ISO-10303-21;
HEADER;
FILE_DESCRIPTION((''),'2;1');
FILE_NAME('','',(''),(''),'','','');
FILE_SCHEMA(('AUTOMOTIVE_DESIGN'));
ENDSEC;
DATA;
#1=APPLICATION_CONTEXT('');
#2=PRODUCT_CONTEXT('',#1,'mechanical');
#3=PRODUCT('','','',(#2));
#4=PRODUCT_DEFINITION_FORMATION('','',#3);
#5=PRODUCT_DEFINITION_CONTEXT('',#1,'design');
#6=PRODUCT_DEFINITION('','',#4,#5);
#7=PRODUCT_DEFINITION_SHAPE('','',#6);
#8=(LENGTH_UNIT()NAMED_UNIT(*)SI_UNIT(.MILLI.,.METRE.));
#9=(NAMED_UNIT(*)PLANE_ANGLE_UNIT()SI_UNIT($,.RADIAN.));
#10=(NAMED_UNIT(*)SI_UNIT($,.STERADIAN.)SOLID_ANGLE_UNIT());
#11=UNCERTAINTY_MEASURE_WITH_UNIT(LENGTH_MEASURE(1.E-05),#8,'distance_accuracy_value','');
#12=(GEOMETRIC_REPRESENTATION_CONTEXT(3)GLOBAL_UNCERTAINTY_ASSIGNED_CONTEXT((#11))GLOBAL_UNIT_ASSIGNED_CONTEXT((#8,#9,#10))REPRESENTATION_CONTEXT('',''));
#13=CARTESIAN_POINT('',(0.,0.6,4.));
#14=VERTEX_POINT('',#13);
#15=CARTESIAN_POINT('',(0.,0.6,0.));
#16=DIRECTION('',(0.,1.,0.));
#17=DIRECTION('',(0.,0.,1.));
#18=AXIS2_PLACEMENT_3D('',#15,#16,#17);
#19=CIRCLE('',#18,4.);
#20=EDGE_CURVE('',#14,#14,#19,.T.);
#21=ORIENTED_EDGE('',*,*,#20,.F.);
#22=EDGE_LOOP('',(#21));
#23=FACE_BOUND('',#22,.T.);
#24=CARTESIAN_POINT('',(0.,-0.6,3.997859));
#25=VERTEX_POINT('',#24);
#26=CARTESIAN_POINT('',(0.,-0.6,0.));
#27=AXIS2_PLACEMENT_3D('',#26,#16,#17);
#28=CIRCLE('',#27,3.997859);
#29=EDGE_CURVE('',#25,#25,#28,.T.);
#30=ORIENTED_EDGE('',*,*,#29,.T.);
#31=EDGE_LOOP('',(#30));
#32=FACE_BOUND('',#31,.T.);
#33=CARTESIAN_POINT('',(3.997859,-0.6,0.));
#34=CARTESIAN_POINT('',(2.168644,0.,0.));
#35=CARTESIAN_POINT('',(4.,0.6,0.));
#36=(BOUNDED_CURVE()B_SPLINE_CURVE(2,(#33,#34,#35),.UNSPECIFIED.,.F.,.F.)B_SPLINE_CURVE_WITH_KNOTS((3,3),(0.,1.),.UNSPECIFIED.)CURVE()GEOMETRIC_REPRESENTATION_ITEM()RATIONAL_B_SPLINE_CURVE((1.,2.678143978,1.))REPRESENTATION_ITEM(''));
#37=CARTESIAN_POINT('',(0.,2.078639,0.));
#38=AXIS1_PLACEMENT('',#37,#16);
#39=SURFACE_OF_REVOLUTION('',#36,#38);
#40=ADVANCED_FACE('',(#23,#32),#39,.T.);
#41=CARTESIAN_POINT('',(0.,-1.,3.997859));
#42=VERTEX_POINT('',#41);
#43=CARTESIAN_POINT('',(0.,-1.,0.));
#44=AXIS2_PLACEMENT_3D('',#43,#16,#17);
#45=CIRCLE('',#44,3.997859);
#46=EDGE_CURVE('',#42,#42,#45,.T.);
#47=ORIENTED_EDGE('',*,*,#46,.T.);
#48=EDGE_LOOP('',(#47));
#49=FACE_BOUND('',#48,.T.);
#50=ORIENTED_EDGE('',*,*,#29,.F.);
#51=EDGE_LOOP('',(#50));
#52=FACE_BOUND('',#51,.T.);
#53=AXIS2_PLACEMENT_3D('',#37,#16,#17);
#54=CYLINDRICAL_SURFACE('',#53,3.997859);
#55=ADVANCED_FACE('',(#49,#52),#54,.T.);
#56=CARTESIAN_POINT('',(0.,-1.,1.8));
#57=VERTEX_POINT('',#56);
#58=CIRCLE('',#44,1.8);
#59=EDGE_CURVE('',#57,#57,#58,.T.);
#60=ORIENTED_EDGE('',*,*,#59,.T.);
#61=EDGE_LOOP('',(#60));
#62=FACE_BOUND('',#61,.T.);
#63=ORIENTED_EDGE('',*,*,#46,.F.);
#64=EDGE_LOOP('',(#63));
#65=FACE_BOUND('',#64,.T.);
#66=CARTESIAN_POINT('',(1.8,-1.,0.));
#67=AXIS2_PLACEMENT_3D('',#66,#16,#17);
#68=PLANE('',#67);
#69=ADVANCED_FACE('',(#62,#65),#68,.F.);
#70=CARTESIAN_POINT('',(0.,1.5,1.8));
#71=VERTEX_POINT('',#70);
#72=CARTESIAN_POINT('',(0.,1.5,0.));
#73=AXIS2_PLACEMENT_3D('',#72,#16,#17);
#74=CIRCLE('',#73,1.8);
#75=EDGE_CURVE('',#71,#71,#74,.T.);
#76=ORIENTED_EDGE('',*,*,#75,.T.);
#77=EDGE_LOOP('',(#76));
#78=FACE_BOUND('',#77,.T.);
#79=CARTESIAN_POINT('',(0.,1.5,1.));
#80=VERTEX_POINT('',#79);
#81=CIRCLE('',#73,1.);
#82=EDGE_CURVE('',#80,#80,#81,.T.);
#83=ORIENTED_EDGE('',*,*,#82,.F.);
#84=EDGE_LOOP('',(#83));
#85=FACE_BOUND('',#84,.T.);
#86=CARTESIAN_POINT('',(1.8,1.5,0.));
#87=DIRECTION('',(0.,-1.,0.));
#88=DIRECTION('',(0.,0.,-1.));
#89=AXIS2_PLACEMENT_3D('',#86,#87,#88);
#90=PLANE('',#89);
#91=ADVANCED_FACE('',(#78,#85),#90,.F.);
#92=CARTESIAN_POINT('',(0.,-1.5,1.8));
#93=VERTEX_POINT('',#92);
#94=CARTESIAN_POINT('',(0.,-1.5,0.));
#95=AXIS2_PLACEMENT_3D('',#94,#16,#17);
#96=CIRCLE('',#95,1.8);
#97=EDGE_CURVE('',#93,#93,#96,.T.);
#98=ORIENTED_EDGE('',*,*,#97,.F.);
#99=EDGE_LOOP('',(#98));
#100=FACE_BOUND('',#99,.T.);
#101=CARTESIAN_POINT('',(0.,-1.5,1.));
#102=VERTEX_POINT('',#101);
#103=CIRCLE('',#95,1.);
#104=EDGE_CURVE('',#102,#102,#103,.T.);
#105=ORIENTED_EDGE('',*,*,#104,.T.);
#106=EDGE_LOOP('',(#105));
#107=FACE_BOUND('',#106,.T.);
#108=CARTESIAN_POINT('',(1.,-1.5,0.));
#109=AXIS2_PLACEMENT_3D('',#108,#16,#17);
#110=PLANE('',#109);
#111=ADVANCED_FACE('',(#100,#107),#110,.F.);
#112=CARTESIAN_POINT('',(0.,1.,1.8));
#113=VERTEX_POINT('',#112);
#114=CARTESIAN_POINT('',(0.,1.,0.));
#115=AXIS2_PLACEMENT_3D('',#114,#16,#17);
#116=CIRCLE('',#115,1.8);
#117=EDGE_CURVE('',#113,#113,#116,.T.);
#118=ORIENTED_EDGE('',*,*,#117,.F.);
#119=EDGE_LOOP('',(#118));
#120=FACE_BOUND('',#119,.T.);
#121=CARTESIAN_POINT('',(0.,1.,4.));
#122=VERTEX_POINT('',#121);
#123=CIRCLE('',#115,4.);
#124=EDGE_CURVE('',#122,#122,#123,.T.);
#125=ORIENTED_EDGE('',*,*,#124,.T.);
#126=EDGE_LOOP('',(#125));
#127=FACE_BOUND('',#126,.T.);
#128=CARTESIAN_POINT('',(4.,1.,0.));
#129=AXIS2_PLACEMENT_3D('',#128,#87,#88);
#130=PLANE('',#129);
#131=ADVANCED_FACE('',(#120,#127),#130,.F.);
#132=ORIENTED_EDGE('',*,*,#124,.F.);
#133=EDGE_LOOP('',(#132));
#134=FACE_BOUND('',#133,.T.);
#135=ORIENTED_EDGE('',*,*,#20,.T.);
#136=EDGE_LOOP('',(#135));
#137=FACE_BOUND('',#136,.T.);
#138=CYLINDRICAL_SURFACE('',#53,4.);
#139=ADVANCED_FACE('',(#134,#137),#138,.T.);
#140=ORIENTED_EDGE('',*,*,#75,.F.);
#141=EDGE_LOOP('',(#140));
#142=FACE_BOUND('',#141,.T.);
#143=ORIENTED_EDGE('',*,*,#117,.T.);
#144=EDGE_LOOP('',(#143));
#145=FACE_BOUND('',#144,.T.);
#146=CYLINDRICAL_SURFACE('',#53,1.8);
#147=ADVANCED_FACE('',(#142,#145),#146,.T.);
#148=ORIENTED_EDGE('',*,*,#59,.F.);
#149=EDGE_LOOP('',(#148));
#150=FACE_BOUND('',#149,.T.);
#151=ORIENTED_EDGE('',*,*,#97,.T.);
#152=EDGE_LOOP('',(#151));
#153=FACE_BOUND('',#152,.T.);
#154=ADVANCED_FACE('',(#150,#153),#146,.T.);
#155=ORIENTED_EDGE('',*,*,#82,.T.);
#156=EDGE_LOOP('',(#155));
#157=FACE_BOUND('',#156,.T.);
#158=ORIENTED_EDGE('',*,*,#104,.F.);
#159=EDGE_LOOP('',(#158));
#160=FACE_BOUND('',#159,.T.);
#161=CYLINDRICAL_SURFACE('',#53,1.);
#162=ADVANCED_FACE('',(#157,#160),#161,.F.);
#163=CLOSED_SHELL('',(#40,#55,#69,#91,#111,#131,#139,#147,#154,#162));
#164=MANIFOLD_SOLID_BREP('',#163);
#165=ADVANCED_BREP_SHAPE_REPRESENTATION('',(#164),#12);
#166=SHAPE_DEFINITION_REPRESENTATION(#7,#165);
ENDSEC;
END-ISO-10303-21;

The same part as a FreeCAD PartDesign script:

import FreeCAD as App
import Part
import Sketcher

doc = App.newDocument("Part")
params = doc.addObject("Spreadsheet::Sheet", "Params")
for row, (alias, value) in enumerate([
    ("sketch1_height", "3 mm"),
    ("sketch1_width", "0.8 mm"),
    ("sketch1_width2", "2.2 mm"),
    ("sketch1_height2", "0.5 mm"),
    ("revolution_angle", "360 deg"),
], start=1):
    params.set(f"A{row}", alias)
    params.set(f"B{row}", "=" + value)
    params.setAlias(f"B{row}", alias)

body = doc.addObject("PartDesign::Body", "Body")

# Sketch on XY plane
sketch1 = body.newObject("Sketcher::SketchObject", "Sketch")
sketch1.AttachmentSupport = (doc.getObject("XY_Plane"), [""])
sketch1.MapMode = "FlatFace"
sketch1.addGeometry(Part.LineSegment(App.Vector(1, -1.5, 0), App.Vector(1.8, -1.5, 0)), False)
sketch1.addGeometry(Part.LineSegment(App.Vector(1.8, -1.5, 0), App.Vector(1.8, -1, 0)), False)
sketch1.addGeometry(Part.LineSegment(App.Vector(1.8, -1, 0), App.Vector(3.997859, -1, 0)), False)
sketch1.addGeometry(Part.LineSegment(App.Vector(3.997859, -1, 0), App.Vector(3.997859, -0.6, 0)), False)
sketch1.addGeometry(Part.BSplineCurve([App.Vector(4, 0.6, 0), App.Vector(2.168644, 0, 0), App.Vector(3.997859, -0.6, 0)], [3, 3], [0, 1], False, 2, [1, 2.678143978, 1], False), False)
sketch1.addGeometry(Part.LineSegment(App.Vector(4, 0.6, 0), App.Vector(4, 1, 0)), False)
sketch1.addGeometry(Part.LineSegment(App.Vector(4, 1, 0), App.Vector(1.8, 1, 0)), False)
sketch1.addGeometry(Part.LineSegment(App.Vector(1.8, 1, 0), App.Vector(1.8, 1.5, 0)), False)
sketch1.addGeometry(Part.LineSegment(App.Vector(1.8, 1.5, 0), App.Vector(1, 1.5, 0)), False)
sketch1.addGeometry(Part.LineSegment(App.Vector(1, 1.5, 0), App.Vector(1, -1.5, 0)), False)
sketch1.addConstraint(Sketcher.Constraint("Block", 4))
sketch1.addConstraint(Sketcher.Constraint("Coincident", 0, 2, 1, 1))
sketch1.addConstraint(Sketcher.Constraint("Coincident", 1, 2, 2, 1))
sketch1.addConstraint(Sketcher.Constraint("Coincident", 2, 2, 3, 1))
sketch1.addConstraint(Sketcher.Constraint("Coincident", 3, 2, 4, 2))
sketch1.addConstraint(Sketcher.Constraint("Coincident", 4, 1, 5, 1))
sketch1.addConstraint(Sketcher.Constraint("Coincident", 5, 2, 6, 1))
sketch1.addConstraint(Sketcher.Constraint("Coincident", 6, 2, 7, 1))
sketch1.addConstraint(Sketcher.Constraint("Coincident", 7, 2, 8, 1))
sketch1.addConstraint(Sketcher.Constraint("Coincident", 8, 2, 9, 1))
sketch1.addConstraint(Sketcher.Constraint("Coincident", 9, 2, 0, 1))
sketch1.addConstraint(Sketcher.Constraint("Horizontal", 0))
sketch1.addConstraint(Sketcher.Constraint("Vertical", 1))
sketch1.addConstraint(Sketcher.Constraint("Horizontal", 2))
sketch1.addConstraint(Sketcher.Constraint("Vertical", 3))
sketch1.addConstraint(Sketcher.Constraint("Vertical", 5))
sketch1.addConstraint(Sketcher.Constraint("Horizontal", 6))
sketch1.addConstraint(Sketcher.Constraint("Vertical", 7))
sketch1.addConstraint(Sketcher.Constraint("Horizontal", 8))
sketch1.addConstraint(Sketcher.Constraint("Vertical", 9))
sketch1.addConstraint(Sketcher.Constraint("Symmetric", 1, 2, 6, 2, -1))
sketch1.addConstraint(Sketcher.Constraint("Equal", 1, 7))
sketch1.addConstraint(Sketcher.Constraint("DistanceY", 9, 2, 9, 1, 3.0))
sketch1.addConstraint(Sketcher.Constraint("DistanceX", 0, 1, 0, 2, 0.8))
sketch1.addConstraint(Sketcher.Constraint("DistanceX", 6, 2, 6, 1, 2.2))
sketch1.addConstraint(Sketcher.Constraint("DistanceY", 1, 1, 1, 2, 0.5))
sketch1.setExpression("Constraints[22]", "Params.sketch1_height")
sketch1.setExpression("Constraints[23]", "Params.sketch1_width")
sketch1.setExpression("Constraints[24]", "Params.sketch1_width2")
sketch1.setExpression("Constraints[25]", "Params.sketch1_height2")
revolution = body.newObject("PartDesign::Revolution", "Revolution")
revolution.Profile = sketch1
revolution.ReferenceAxis = (sketch1, ["V_Axis"])
revolution.setExpression("Angle", "Params.revolution_angle")

doc.recompute()
